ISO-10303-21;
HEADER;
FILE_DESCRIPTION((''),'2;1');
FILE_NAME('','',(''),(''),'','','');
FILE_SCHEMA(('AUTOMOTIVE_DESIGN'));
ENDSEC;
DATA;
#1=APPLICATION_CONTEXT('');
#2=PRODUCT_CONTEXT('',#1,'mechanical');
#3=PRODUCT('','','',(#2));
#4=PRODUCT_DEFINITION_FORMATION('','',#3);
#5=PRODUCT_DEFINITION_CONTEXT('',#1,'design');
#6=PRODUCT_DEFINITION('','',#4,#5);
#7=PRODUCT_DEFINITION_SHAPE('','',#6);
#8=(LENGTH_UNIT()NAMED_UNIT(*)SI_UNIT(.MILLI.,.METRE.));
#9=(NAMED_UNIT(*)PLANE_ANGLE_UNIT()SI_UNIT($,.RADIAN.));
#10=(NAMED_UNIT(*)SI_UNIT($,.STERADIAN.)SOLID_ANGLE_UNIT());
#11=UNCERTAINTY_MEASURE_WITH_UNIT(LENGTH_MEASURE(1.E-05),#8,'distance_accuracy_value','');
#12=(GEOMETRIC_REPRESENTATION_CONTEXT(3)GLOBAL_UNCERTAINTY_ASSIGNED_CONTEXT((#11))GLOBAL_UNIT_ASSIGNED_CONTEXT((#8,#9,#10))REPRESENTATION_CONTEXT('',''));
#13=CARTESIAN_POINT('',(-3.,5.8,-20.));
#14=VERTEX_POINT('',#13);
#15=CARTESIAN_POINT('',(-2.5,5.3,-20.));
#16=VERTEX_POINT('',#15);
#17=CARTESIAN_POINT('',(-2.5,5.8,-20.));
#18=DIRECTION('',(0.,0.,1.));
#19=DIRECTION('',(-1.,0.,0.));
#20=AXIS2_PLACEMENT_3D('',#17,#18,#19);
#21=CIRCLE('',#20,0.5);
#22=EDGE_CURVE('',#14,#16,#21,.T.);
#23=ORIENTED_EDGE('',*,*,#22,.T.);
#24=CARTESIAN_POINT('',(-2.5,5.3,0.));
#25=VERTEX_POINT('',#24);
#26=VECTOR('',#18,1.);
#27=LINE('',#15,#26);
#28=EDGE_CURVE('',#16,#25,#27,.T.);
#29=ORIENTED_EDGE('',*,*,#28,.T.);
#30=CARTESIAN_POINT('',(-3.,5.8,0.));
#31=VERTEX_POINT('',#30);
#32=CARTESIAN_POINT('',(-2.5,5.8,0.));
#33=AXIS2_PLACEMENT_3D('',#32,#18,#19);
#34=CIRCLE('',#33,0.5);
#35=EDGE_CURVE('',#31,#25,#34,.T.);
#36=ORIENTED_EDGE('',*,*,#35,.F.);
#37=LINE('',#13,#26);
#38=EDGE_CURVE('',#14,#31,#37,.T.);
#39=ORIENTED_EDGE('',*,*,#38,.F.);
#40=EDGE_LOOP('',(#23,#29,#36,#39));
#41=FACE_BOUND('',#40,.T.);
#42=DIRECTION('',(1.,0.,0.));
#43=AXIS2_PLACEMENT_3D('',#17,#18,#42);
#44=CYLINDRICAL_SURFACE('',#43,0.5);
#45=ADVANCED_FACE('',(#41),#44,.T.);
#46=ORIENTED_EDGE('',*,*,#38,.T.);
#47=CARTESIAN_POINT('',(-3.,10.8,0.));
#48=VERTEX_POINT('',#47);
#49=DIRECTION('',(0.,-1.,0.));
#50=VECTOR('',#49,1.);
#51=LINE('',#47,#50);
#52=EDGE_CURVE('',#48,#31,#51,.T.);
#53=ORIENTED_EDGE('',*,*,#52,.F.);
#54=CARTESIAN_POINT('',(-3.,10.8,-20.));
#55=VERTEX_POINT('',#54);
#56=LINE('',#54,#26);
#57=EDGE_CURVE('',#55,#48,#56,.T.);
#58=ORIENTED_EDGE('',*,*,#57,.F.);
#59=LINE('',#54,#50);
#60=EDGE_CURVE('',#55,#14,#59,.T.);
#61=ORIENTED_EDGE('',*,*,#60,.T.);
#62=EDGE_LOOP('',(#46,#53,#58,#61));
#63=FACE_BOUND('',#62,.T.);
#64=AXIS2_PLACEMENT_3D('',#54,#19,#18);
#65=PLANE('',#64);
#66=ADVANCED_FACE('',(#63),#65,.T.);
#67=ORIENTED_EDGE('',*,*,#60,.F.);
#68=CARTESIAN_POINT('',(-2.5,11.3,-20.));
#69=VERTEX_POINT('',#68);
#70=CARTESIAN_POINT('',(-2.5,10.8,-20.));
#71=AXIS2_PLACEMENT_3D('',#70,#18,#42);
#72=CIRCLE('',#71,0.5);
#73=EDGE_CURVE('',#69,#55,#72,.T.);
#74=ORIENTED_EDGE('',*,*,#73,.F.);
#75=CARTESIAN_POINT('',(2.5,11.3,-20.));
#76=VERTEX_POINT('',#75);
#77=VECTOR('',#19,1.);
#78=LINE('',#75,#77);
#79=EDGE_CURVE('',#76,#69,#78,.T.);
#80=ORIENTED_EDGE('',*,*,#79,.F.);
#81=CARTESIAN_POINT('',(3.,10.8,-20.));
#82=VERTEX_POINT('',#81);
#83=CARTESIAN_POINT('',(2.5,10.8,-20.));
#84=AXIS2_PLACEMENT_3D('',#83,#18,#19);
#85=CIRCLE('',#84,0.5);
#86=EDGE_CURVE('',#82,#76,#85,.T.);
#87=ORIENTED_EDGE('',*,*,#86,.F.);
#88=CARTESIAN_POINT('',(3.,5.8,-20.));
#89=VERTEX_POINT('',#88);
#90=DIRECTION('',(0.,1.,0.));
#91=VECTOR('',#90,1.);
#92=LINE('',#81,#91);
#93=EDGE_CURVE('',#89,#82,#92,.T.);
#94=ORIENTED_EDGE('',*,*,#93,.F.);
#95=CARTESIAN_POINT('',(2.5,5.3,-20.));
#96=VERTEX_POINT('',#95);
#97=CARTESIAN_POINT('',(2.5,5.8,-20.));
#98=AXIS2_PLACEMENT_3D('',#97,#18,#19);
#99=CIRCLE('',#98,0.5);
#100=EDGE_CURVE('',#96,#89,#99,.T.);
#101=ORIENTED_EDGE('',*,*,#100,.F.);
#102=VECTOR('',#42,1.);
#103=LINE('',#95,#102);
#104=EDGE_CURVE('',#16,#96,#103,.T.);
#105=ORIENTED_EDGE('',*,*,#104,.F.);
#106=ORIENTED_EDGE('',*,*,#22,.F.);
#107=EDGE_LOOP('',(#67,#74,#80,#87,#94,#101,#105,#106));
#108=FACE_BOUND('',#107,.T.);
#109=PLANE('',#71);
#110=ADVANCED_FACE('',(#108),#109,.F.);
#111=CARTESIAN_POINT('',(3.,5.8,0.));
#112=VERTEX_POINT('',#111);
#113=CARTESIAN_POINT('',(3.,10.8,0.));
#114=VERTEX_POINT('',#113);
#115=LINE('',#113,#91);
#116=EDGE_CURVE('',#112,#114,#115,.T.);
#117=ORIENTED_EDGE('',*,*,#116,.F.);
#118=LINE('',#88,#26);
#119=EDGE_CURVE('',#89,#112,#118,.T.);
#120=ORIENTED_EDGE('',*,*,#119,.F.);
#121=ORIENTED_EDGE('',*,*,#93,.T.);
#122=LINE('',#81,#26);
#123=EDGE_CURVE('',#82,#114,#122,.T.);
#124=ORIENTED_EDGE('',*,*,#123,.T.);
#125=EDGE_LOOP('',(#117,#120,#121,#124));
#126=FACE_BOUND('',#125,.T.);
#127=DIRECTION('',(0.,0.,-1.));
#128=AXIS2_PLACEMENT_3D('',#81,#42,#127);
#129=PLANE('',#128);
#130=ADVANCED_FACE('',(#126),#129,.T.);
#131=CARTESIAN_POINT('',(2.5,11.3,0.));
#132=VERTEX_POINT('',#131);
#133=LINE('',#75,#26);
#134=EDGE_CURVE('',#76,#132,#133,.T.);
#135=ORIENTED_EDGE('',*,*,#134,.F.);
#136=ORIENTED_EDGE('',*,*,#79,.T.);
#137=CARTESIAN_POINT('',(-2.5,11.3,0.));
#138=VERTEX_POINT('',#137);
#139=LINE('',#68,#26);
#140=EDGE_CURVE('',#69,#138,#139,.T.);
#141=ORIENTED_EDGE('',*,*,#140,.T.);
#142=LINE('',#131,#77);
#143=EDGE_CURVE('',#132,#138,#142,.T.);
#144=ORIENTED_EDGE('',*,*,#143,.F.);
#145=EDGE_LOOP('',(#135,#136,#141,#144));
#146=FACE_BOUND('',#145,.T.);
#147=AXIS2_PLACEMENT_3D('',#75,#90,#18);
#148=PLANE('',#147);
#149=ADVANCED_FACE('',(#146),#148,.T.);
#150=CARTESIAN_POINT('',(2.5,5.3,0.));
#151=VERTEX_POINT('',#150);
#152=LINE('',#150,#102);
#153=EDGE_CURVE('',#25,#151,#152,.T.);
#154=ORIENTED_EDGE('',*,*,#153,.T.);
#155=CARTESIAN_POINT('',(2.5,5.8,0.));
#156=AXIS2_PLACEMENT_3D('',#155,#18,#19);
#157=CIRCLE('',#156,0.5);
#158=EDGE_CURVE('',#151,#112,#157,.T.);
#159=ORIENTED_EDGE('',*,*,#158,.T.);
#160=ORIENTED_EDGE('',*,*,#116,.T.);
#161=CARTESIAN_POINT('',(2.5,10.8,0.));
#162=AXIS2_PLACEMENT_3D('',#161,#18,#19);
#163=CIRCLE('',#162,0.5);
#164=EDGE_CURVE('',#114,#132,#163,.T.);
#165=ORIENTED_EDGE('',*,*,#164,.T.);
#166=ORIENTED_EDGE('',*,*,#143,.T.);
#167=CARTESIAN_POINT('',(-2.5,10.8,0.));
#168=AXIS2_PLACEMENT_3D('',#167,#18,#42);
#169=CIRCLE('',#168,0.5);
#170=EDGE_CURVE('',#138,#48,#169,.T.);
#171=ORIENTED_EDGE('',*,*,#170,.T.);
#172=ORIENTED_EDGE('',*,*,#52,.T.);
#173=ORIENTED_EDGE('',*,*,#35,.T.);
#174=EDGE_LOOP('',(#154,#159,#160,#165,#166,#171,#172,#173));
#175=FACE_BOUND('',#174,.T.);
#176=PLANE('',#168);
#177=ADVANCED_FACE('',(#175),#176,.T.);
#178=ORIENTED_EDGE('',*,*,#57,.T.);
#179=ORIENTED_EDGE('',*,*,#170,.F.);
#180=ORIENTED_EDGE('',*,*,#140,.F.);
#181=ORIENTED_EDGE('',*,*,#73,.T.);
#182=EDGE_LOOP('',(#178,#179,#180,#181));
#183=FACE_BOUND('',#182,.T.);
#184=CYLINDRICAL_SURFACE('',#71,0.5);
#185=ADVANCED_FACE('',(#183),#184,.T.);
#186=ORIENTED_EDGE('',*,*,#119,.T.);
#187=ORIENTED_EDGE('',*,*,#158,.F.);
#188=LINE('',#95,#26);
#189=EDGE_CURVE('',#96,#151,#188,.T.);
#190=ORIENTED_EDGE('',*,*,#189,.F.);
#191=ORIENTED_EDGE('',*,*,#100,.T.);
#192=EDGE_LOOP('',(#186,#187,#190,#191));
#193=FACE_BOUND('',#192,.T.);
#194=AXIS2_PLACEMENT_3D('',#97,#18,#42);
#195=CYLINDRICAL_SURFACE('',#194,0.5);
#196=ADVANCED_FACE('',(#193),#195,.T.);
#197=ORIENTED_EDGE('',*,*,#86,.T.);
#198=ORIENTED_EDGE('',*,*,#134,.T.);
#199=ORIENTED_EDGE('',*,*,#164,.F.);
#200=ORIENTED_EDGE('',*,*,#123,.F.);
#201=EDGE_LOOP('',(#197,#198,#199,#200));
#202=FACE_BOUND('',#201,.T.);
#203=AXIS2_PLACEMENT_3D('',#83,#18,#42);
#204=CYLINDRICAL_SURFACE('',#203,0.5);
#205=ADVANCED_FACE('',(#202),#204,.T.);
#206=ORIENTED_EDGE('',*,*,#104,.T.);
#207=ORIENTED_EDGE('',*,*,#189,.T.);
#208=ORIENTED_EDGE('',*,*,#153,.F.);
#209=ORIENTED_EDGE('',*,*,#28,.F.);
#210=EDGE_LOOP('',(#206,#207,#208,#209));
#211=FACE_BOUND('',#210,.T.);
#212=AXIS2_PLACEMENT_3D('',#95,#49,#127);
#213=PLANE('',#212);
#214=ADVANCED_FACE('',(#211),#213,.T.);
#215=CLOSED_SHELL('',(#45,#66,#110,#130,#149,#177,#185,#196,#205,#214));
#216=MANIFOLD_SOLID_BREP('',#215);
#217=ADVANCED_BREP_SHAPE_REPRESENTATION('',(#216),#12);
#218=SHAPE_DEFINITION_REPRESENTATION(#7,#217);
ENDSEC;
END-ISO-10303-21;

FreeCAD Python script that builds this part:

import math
import FreeCAD as App
import Part
import Sketcher
Q = App.Units.Quantity

doc = App.newDocument("Part")
body = doc.addObject("PartDesign::Body", "Body")

# Sketch on XY plane
sketch1 = body.newObject("Sketcher::SketchObject", "Sketch")
sketch1.AttachmentSupport = (doc.getObject("XY_Plane"), [""])
sketch1.MapMode = "FlatFace"
sketch1.addGeometry([
    Part.LineSegment(App.Vector(2.5, 11.3, 0), App.Vector(-2.5, 11.3, 0)),  # 0
    Part.ArcOfCircle(Part.Circle(App.Vector(-2.5, 10.8, 0), App.Vector(0, 0, 1), 0.5), math.radians(90), math.radians(180)),  # 1
    Part.LineSegment(App.Vector(-3, 10.8, 0), App.Vector(-3, 5.8, 0)),  # 2
    Part.ArcOfCircle(Part.Circle(App.Vector(-2.5, 5.8, 0), App.Vector(0, 0, 1), 0.5), math.radians(180), math.radians(270)),  # 3
    Part.LineSegment(App.Vector(-2.5, 5.3, 0), App.Vector(2.5, 5.3, 0)),  # 4
    Part.ArcOfCircle(Part.Circle(App.Vector(2.5, 5.8, 0), App.Vector(0, 0, 1), 0.5), math.radians(-90), math.radians(0)),  # 5
    Part.LineSegment(App.Vector(3, 5.8, 0), App.Vector(3, 10.8, 0)),  # 6
    Part.ArcOfCircle(Part.Circle(App.Vector(2.5, 10.8, 0), App.Vector(0, 0, 1), 0.5), math.radians(0), math.radians(90)),  # 7
], False)
sketch1.addConstraint([
    Sketcher.Constraint("Tangent", 0, 2, 1, 1),
    Sketcher.Constraint("Tangent", 1, 2, 2, 1),
    Sketcher.Constraint("Tangent", 2, 2, 3, 1),
    Sketcher.Constraint("Tangent", 3, 2, 4, 1),
    Sketcher.Constraint("Tangent", 4, 2, 5, 1),
    Sketcher.Constraint("Tangent", 5, 2, 6, 1),
    Sketcher.Constraint("Tangent", 6, 2, 7, 1),
    Sketcher.Constraint("Tangent", 7, 2, 0, 1),
    Sketcher.Constraint("Horizontal", 0),
    Sketcher.Constraint("Vertical", 2),
    Sketcher.Constraint("Horizontal", 4),
    Sketcher.Constraint("Vertical", 6),
    Sketcher.Constraint("Equal", 1, 3),
    Sketcher.Constraint("Equal", 3, 5),
    Sketcher.Constraint("Equal", 5, 7),
    Sketcher.Constraint("Equal", 4, 2),
    Sketcher.Constraint("Radius", 1, Q("0.5 mm")),
    Sketcher.Constraint("DistanceX", 0, 2, 0, 1, Q("5 mm")),
    Sketcher.Constraint("DistanceX", 1, 2, -1, 1, Q("3 mm")),
    Sketcher.Constraint("DistanceY", -1, 1, 1, 3, Q("10.8 mm")),
])
pad1 = body.newObject("PartDesign::Pad", "Pad")
pad1.Profile = sketch1
pad1.Length = 20
pad1.Reversed = True

doc.recompute()
